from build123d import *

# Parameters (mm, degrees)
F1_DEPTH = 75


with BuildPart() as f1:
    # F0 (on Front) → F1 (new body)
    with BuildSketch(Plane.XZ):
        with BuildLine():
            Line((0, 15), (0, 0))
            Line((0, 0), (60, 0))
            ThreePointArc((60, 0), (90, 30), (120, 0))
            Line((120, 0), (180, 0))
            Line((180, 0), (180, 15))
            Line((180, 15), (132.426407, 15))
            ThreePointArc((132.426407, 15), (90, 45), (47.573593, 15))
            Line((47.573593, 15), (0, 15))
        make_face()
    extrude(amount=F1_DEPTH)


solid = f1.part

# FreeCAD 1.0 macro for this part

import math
import FreeCAD as App
import Part
import Sketcher
from FreeCAD import Vector

doc = App.newDocument("Part")
params = doc.addObject("Spreadsheet::Sheet", "Params")
for row, (alias, value) in enumerate([
    ("sketch1_radius", "30 mm"),
    ("sketch1_radius2", "45 mm"),
    ("sketch1_width", "60 mm"),
    ("sketch1_height", "15 mm"),
    ("pad1_length", "75 mm"),
], start=1):
    params.set(f"A{row}", alias)
    params.set(f"B{row}", "=" + value)
    params.setAlias(f"B{row}", alias)

body = doc.addObject("PartDesign::Body", "Body")

sketch1 = doc.addObject("Sketcher::SketchObject", "Sketch")
body.addObject(sketch1)
sketch1.AttachmentSupport = (doc.XZ_Plane, [""])
sketch1.MapMode = "FlatFace"
sketch1.addGeometry(Part.LineSegment(Vector(0, 15, 0), Vector(0, 0, 0)), False)
sketch1.addGeometry(Part.LineSegment(Vector(0, 0, 0), Vector(60, 0, 0)), False)
sketch1.addGeometry(Part.ArcOfCircle(Part.Circle(Vector(90, 0, 0), Vector(0, 0, 1), 30), math.radians(0), math.radians(180)), False)
sketch1.addGeometry(Part.LineSegment(Vector(120, 0, 0), Vector(180, 0, 0)), False)
sketch1.addGeometry(Part.LineSegment(Vector(180, 0, 0), Vector(180, 15, 0)), False)
sketch1.addGeometry(Part.LineSegment(Vector(180, 15, 0), Vector(132.426407, 15, 0)), False)
sketch1.addGeometry(Part.ArcOfCircle(Part.Circle(Vector(90, 0, 0), Vector(0, 0, 1), 45), math.radians(19.471221), math.radians(160.528779)), False)
sketch1.addGeometry(Part.LineSegment(Vector(47.573593, 15, 0), Vector(0, 15, 0)), False)
sketch1.addConstraint(Sketcher.Constraint("Coincident", 0, 2, 1, 1))
sketch1.addConstraint(Sketcher.Constraint("Coincident", 1, 2, 2, 2))
sketch1.addConstraint(Sketcher.Constraint("Coincident", 2, 1, 3, 1))
sketch1.addConstraint(Sketcher.Constraint("Coincident", 3, 2, 4, 1))
sketch1.addConstraint(Sketcher.Constraint("Coincident", 4, 2, 5, 1))
sketch1.addConstraint(Sketcher.Constraint("Coincident", 5, 2, 6, 1))
sketch1.addConstraint(Sketcher.Constraint("Coincident", 6, 2, 7, 1))
sketch1.addConstraint(Sketcher.Constraint("Coincident", 7, 2, 0, 1))
sketch1.addConstraint(Sketcher.Constraint("Vertical", 0))
sketch1.addConstraint(Sketcher.Constraint("Horizontal", 1))
sketch1.addConstraint(Sketcher.Constraint("Horizontal", 3))
sketch1.addConstraint(Sketcher.Constraint("Vertical", 4))
sketch1.addConstraint(Sketcher.Constraint("Horizontal", 5))
sketch1.addConstraint(Sketcher.Constraint("Horizontal", 7))
sketch1.addConstraint(Sketcher.Constraint("Coincident", 0, 2, -1, 1))
sketch1.addConstraint(Sketcher.Constraint("Coincident", 6, 3, 2, 3))
sketch1.addConstraint(Sketcher.Constraint("PointOnObject", 2, 3, -1))
sketch1.addConstraint(Sketcher.Constraint("PointOnObject", 2, 1, -1))
sketch1.addConstraint(Sketcher.Constraint("Horizontal", 5, 2, 6, 2))
sketch1.addConstraint(Sketcher.Constraint("Equal", 1, 3))
sketch1.addConstraint(Sketcher.Constraint("Radius", 2, 30.0))
sketch1.addConstraint(Sketcher.Constraint("Radius", 6, 45.0))
sketch1.addConstraint(Sketcher.Constraint("DistanceX", 1, 1, 1, 2, 60.0))
sketch1.addConstraint(Sketcher.Constraint("DistanceY", 0, 2, 0, 1, 15.0))
sketch1.setExpression("Constraints[20]", "Params.sketch1_radius")
sketch1.setExpression("Constraints[21]", "Params.sketch1_radius2")
sketch1.setExpression("Constraints[22]", "Params.sketch1_width")
sketch1.setExpression("Constraints[23]", "Params.sketch1_height")
pad1 = doc.addObject("PartDesign::Pad", "Pad")
body.addObject(pad1)
pad1.Profile = sketch1
pad1.setExpression("Length", "Params.pad1_length")

doc.recompute()
